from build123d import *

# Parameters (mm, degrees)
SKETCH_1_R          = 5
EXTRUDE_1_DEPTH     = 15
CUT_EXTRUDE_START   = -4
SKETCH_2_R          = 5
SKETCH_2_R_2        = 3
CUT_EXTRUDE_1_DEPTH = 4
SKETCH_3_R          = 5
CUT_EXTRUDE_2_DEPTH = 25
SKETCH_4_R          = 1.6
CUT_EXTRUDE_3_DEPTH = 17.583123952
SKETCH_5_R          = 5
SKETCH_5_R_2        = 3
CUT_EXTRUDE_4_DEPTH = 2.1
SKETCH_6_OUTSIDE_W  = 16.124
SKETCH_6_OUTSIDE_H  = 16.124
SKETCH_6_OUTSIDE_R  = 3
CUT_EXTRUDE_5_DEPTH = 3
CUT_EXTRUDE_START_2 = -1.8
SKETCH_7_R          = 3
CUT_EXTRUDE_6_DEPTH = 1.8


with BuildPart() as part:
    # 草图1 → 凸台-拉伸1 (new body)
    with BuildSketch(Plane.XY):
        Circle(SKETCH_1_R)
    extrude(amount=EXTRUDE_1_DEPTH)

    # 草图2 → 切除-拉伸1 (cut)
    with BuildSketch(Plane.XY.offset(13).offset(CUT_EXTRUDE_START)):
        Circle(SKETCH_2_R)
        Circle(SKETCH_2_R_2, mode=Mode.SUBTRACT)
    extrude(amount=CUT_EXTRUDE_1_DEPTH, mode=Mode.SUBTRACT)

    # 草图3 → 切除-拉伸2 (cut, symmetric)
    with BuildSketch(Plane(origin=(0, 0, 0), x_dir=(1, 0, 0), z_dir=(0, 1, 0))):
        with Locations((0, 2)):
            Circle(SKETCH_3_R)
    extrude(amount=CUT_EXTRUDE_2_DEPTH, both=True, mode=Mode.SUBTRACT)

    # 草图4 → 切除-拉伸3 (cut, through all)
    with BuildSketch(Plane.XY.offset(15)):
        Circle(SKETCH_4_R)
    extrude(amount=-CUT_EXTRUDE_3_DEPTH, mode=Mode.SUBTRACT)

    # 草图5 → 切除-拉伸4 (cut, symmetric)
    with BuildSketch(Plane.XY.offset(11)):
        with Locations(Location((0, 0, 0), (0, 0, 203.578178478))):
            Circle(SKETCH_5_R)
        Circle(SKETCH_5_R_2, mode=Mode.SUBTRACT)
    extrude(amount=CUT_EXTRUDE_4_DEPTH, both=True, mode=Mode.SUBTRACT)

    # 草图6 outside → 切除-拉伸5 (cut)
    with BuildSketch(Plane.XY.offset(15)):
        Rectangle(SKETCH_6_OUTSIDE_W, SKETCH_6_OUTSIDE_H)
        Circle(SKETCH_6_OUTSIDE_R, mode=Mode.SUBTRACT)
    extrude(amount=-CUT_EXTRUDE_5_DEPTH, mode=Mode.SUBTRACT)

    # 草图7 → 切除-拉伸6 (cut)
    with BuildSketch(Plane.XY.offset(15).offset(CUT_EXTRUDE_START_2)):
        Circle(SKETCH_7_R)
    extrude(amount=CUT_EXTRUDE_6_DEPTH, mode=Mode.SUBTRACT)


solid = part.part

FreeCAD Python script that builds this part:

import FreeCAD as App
import Part
import Sketcher
from FreeCAD import Vector
Q = App.Units.Quantity

doc = App.newDocument("Part")
body = doc.addObject("PartDesign::Body", "Body")

# Sketch on XY plane
sketch1 = doc.addObject("Sketcher::SketchObject", "Sketch")
body.addObject(sketch1)
sketch1.AttachmentSupport = (doc.XY_Plane, [""])
sketch1.MapMode = "FlatFace"
sketch1.addGeometry(Part.Circle(Vector(0, 0, 0), Vector(0, 0, 1), 5), False)
sketch1.addConstraint(Sketcher.Constraint("Coincident", 0, 3, -1, 1))
sketch1.addConstraint(Sketcher.Constraint("Diameter", 0, Q("10 mm")))
pad1 = doc.addObject("PartDesign::Pad", "Pad")
body.addObject(pad1)
pad1.Profile = sketch1
pad1.Length = 15

# Sketch on XY plane
sketch2 = doc.addObject("Sketcher::SketchObject", "Sketch001")
body.addObject(sketch2)
sketch2.AttachmentSupport = (doc.XY_Plane, [""])
sketch2.MapMode = "FlatFace"
sketch2.AttachmentOffset = App.Placement(Vector(0, 0, 9), App.Rotation())
sketch2.addGeometry(Part.Circle(Vector(0, 0, 0), Vector(0, 0, 1), 5), False)
sketch2.addGeometry(Part.Circle(Vector(0, 0, 0), Vector(0, 0, 1), 3), False)
sketch2.addConstraint(Sketcher.Constraint("Coincident", 0, 3, -1, 1))
sketch2.addConstraint(Sketcher.Constraint("Coincident", 1, 3, -1, 1))
sketch2.addConstraint(Sketcher.Constraint("Diameter", 0, Q("10 mm")))
sketch2.addConstraint(Sketcher.Constraint("Diameter", 1, Q("6 mm")))
pocket1 = doc.addObject("PartDesign::Pocket", "Pocket")
body.addObject(pocket1)
pocket1.Profile = sketch2
pocket1.Length = 4
pocket1.Reversed = True

# Sketch on XZ plane
sketch3 = doc.addObject("Sketcher::SketchObject", "Sketch002")
body.addObject(sketch3)
sketch3.AttachmentSupport = (doc.XZ_Plane, [""])
sketch3.MapMode = "FlatFace"
sketch3.addGeometry(Part.Circle(Vector(0, -2, 0), Vector(0, 0, 1), 5), False)
sketch3.addConstraint(Sketcher.Constraint("PointOnObject", 0, 3, -2))
sketch3.addConstraint(Sketcher.Constraint("Diameter", 0, Q("10 mm")))
sketch3.addConstraint(Sketcher.Constraint("DistanceY", 0, 3, -1, 1, Q("2 mm")))
pocket2 = doc.addObject("PartDesign::Pocket", "Pocket001")
body.addObject(pocket2)
pocket2.Profile = sketch3
pocket2.Length = 50
pocket2.Midplane = True

# Sketch on XY plane
sketch4 = doc.addObject("Sketcher::SketchObject", "Sketch003")
body.addObject(sketch4)
sketch4.AttachmentSupport = (doc.XY_Plane, [""])
sketch4.MapMode = "FlatFace"
sketch4.AttachmentOffset = App.Placement(Vector(0, 0, 15), App.Rotation())
sketch4.addGeometry(Part.Circle(Vector(0, 0, 0), Vector(0, 0, 1), 1.6), False)
sketch4.addConstraint(Sketcher.Constraint("Coincident", 0, 3, -1, 1))
sketch4.addConstraint(Sketcher.Constraint("Diameter", 0, Q("3.2 mm")))
pocket3 = doc.addObject("PartDesign::Pocket", "Pocket002")
body.addObject(pocket3)
pocket3.Profile = sketch4
pocket3.Type = "ThroughAll"

# Sketch on XY plane
sketch5 = doc.addObject("Sketcher::SketchObject", "Sketch004")
body.addObject(sketch5)
sketch5.AttachmentSupport = (doc.XY_Plane, [""])
sketch5.MapMode = "FlatFace"
sketch5.AttachmentOffset = App.Placement(Vector(0, 0, 11), App.Rotation())
sketch5.addGeometry(Part.Circle(Vector(0, 0, 0), Vector(0, 0, 1), 5), False)
sketch5.addGeometry(Part.Circle(Vector(0, 0, 0), Vector(0, 0, 1), 3), False)
sketch5.addConstraint(Sketcher.Constraint("Coincident", 0, 3, -1, 1))
sketch5.addConstraint(Sketcher.Constraint("Coincident", 1, 3, -1, 1))
sketch5.addConstraint(Sketcher.Constraint("Diameter", 0, Q("10 mm")))
sketch5.addConstraint(Sketcher.Constraint("Diameter", 1, Q("6 mm")))
pocket4 = doc.addObject("PartDesign::Pocket", "Pocket003")
body.addObject(pocket4)
pocket4.Profile = sketch5
pocket4.Length = 4.2
pocket4.Midplane = True

# Sketch on XY plane
sketch6 = doc.addObject("Sketcher::SketchObject", "Sketch005")
body.addObject(sketch6)
sketch6.AttachmentSupport = (doc.XY_Plane, [""])
sketch6.MapMode = "FlatFace"
sketch6.AttachmentOffset = App.Placement(Vector(0, 0, 15), App.Rotation())
sketch6.addGeometry(Part.LineSegment(Vector(-8.1, 8.1, 0), Vector(-8.1, -8.1, 0)), False)
sketch6.addGeometry(Part.LineSegment(Vector(-8.1, -8.1, 0), Vector(8.1, -8.1, 0)), False)
sketch6.addGeometry(Part.LineSegment(Vector(8.1, -8.1, 0), Vector(8.1, 8.1, 0)), False)
sketch6.addGeometry(Part.LineSegment(Vector(8.1, 8.1, 0), Vector(-8.1, 8.1, 0)), False)
sketch6.addGeometry(Part.Circle(Vector(0, 0, 0), Vector(0, 0, 1), 3), False)
sketch6.addConstraint(Sketcher.Constraint("Coincident", 0, 2, 1, 1))
sketch6.addConstraint(Sketcher.Constraint("Coincident", 1, 2, 2, 1))
sketch6.addConstraint(Sketcher.Constraint("Coincident", 2, 2, 3, 1))
sketch6.addConstraint(Sketcher.Constraint("Coincident", 3, 2, 0, 1))
sketch6.addConstraint(Sketcher.Constraint("Vertical", 0))
sketch6.addConstraint(Sketcher.Constraint("Horizontal", 1))
sketch6.addConstraint(Sketcher.Constraint("Vertical", 2))
sketch6.addConstraint(Sketcher.Constraint("Horizontal", 3))
sketch6.addConstraint(Sketcher.Constraint("Coincident", 4, 3, -1, 1))
sketch6.addConstraint(Sketcher.Constraint("Symmetric", 0, 2, 2, 2, -1, 1))
sketch6.addConstraint(Sketcher.Constraint("Equal", 3, 0))
sketch6.addConstraint(Sketcher.Constraint("Diameter", 4, Q("6 mm")))
sketch6.addConstraint(Sketcher.Constraint("DistanceX", 1, 1, 1, 2, Q("16.124 mm")))
pocket5 = doc.addObject("PartDesign::Pocket", "Pocket004")
body.addObject(pocket5)
pocket5.Profile = sketch6
pocket5.Length = 3

# Sketch on XY plane
sketch7 = doc.addObject("Sketcher::SketchObject", "Sketch006")
body.addObject(sketch7)
sketch7.AttachmentSupport = (doc.XY_Plane, [""])
sketch7.MapMode = "FlatFace"
sketch7.AttachmentOffset = App.Placement(Vector(0, 0, 13.2), App.Rotation())
sketch7.addGeometry(Part.Circle(Vector(0, 0, 0), Vector(0, 0, 1), 3), False)
sketch7.addConstraint(Sketcher.Constraint("Coincident", 0, 3, -1, 1))
sketch7.addConstraint(Sketcher.Constraint("Diameter", 0, Q("6 mm")))
pocket6 = doc.addObject("PartDesign::Pocket", "Pocket005")
body.addObject(pocket6)
pocket6.Profile = sketch7
pocket6.Length = 1.8
pocket6.Reversed = True

doc.recompute()
